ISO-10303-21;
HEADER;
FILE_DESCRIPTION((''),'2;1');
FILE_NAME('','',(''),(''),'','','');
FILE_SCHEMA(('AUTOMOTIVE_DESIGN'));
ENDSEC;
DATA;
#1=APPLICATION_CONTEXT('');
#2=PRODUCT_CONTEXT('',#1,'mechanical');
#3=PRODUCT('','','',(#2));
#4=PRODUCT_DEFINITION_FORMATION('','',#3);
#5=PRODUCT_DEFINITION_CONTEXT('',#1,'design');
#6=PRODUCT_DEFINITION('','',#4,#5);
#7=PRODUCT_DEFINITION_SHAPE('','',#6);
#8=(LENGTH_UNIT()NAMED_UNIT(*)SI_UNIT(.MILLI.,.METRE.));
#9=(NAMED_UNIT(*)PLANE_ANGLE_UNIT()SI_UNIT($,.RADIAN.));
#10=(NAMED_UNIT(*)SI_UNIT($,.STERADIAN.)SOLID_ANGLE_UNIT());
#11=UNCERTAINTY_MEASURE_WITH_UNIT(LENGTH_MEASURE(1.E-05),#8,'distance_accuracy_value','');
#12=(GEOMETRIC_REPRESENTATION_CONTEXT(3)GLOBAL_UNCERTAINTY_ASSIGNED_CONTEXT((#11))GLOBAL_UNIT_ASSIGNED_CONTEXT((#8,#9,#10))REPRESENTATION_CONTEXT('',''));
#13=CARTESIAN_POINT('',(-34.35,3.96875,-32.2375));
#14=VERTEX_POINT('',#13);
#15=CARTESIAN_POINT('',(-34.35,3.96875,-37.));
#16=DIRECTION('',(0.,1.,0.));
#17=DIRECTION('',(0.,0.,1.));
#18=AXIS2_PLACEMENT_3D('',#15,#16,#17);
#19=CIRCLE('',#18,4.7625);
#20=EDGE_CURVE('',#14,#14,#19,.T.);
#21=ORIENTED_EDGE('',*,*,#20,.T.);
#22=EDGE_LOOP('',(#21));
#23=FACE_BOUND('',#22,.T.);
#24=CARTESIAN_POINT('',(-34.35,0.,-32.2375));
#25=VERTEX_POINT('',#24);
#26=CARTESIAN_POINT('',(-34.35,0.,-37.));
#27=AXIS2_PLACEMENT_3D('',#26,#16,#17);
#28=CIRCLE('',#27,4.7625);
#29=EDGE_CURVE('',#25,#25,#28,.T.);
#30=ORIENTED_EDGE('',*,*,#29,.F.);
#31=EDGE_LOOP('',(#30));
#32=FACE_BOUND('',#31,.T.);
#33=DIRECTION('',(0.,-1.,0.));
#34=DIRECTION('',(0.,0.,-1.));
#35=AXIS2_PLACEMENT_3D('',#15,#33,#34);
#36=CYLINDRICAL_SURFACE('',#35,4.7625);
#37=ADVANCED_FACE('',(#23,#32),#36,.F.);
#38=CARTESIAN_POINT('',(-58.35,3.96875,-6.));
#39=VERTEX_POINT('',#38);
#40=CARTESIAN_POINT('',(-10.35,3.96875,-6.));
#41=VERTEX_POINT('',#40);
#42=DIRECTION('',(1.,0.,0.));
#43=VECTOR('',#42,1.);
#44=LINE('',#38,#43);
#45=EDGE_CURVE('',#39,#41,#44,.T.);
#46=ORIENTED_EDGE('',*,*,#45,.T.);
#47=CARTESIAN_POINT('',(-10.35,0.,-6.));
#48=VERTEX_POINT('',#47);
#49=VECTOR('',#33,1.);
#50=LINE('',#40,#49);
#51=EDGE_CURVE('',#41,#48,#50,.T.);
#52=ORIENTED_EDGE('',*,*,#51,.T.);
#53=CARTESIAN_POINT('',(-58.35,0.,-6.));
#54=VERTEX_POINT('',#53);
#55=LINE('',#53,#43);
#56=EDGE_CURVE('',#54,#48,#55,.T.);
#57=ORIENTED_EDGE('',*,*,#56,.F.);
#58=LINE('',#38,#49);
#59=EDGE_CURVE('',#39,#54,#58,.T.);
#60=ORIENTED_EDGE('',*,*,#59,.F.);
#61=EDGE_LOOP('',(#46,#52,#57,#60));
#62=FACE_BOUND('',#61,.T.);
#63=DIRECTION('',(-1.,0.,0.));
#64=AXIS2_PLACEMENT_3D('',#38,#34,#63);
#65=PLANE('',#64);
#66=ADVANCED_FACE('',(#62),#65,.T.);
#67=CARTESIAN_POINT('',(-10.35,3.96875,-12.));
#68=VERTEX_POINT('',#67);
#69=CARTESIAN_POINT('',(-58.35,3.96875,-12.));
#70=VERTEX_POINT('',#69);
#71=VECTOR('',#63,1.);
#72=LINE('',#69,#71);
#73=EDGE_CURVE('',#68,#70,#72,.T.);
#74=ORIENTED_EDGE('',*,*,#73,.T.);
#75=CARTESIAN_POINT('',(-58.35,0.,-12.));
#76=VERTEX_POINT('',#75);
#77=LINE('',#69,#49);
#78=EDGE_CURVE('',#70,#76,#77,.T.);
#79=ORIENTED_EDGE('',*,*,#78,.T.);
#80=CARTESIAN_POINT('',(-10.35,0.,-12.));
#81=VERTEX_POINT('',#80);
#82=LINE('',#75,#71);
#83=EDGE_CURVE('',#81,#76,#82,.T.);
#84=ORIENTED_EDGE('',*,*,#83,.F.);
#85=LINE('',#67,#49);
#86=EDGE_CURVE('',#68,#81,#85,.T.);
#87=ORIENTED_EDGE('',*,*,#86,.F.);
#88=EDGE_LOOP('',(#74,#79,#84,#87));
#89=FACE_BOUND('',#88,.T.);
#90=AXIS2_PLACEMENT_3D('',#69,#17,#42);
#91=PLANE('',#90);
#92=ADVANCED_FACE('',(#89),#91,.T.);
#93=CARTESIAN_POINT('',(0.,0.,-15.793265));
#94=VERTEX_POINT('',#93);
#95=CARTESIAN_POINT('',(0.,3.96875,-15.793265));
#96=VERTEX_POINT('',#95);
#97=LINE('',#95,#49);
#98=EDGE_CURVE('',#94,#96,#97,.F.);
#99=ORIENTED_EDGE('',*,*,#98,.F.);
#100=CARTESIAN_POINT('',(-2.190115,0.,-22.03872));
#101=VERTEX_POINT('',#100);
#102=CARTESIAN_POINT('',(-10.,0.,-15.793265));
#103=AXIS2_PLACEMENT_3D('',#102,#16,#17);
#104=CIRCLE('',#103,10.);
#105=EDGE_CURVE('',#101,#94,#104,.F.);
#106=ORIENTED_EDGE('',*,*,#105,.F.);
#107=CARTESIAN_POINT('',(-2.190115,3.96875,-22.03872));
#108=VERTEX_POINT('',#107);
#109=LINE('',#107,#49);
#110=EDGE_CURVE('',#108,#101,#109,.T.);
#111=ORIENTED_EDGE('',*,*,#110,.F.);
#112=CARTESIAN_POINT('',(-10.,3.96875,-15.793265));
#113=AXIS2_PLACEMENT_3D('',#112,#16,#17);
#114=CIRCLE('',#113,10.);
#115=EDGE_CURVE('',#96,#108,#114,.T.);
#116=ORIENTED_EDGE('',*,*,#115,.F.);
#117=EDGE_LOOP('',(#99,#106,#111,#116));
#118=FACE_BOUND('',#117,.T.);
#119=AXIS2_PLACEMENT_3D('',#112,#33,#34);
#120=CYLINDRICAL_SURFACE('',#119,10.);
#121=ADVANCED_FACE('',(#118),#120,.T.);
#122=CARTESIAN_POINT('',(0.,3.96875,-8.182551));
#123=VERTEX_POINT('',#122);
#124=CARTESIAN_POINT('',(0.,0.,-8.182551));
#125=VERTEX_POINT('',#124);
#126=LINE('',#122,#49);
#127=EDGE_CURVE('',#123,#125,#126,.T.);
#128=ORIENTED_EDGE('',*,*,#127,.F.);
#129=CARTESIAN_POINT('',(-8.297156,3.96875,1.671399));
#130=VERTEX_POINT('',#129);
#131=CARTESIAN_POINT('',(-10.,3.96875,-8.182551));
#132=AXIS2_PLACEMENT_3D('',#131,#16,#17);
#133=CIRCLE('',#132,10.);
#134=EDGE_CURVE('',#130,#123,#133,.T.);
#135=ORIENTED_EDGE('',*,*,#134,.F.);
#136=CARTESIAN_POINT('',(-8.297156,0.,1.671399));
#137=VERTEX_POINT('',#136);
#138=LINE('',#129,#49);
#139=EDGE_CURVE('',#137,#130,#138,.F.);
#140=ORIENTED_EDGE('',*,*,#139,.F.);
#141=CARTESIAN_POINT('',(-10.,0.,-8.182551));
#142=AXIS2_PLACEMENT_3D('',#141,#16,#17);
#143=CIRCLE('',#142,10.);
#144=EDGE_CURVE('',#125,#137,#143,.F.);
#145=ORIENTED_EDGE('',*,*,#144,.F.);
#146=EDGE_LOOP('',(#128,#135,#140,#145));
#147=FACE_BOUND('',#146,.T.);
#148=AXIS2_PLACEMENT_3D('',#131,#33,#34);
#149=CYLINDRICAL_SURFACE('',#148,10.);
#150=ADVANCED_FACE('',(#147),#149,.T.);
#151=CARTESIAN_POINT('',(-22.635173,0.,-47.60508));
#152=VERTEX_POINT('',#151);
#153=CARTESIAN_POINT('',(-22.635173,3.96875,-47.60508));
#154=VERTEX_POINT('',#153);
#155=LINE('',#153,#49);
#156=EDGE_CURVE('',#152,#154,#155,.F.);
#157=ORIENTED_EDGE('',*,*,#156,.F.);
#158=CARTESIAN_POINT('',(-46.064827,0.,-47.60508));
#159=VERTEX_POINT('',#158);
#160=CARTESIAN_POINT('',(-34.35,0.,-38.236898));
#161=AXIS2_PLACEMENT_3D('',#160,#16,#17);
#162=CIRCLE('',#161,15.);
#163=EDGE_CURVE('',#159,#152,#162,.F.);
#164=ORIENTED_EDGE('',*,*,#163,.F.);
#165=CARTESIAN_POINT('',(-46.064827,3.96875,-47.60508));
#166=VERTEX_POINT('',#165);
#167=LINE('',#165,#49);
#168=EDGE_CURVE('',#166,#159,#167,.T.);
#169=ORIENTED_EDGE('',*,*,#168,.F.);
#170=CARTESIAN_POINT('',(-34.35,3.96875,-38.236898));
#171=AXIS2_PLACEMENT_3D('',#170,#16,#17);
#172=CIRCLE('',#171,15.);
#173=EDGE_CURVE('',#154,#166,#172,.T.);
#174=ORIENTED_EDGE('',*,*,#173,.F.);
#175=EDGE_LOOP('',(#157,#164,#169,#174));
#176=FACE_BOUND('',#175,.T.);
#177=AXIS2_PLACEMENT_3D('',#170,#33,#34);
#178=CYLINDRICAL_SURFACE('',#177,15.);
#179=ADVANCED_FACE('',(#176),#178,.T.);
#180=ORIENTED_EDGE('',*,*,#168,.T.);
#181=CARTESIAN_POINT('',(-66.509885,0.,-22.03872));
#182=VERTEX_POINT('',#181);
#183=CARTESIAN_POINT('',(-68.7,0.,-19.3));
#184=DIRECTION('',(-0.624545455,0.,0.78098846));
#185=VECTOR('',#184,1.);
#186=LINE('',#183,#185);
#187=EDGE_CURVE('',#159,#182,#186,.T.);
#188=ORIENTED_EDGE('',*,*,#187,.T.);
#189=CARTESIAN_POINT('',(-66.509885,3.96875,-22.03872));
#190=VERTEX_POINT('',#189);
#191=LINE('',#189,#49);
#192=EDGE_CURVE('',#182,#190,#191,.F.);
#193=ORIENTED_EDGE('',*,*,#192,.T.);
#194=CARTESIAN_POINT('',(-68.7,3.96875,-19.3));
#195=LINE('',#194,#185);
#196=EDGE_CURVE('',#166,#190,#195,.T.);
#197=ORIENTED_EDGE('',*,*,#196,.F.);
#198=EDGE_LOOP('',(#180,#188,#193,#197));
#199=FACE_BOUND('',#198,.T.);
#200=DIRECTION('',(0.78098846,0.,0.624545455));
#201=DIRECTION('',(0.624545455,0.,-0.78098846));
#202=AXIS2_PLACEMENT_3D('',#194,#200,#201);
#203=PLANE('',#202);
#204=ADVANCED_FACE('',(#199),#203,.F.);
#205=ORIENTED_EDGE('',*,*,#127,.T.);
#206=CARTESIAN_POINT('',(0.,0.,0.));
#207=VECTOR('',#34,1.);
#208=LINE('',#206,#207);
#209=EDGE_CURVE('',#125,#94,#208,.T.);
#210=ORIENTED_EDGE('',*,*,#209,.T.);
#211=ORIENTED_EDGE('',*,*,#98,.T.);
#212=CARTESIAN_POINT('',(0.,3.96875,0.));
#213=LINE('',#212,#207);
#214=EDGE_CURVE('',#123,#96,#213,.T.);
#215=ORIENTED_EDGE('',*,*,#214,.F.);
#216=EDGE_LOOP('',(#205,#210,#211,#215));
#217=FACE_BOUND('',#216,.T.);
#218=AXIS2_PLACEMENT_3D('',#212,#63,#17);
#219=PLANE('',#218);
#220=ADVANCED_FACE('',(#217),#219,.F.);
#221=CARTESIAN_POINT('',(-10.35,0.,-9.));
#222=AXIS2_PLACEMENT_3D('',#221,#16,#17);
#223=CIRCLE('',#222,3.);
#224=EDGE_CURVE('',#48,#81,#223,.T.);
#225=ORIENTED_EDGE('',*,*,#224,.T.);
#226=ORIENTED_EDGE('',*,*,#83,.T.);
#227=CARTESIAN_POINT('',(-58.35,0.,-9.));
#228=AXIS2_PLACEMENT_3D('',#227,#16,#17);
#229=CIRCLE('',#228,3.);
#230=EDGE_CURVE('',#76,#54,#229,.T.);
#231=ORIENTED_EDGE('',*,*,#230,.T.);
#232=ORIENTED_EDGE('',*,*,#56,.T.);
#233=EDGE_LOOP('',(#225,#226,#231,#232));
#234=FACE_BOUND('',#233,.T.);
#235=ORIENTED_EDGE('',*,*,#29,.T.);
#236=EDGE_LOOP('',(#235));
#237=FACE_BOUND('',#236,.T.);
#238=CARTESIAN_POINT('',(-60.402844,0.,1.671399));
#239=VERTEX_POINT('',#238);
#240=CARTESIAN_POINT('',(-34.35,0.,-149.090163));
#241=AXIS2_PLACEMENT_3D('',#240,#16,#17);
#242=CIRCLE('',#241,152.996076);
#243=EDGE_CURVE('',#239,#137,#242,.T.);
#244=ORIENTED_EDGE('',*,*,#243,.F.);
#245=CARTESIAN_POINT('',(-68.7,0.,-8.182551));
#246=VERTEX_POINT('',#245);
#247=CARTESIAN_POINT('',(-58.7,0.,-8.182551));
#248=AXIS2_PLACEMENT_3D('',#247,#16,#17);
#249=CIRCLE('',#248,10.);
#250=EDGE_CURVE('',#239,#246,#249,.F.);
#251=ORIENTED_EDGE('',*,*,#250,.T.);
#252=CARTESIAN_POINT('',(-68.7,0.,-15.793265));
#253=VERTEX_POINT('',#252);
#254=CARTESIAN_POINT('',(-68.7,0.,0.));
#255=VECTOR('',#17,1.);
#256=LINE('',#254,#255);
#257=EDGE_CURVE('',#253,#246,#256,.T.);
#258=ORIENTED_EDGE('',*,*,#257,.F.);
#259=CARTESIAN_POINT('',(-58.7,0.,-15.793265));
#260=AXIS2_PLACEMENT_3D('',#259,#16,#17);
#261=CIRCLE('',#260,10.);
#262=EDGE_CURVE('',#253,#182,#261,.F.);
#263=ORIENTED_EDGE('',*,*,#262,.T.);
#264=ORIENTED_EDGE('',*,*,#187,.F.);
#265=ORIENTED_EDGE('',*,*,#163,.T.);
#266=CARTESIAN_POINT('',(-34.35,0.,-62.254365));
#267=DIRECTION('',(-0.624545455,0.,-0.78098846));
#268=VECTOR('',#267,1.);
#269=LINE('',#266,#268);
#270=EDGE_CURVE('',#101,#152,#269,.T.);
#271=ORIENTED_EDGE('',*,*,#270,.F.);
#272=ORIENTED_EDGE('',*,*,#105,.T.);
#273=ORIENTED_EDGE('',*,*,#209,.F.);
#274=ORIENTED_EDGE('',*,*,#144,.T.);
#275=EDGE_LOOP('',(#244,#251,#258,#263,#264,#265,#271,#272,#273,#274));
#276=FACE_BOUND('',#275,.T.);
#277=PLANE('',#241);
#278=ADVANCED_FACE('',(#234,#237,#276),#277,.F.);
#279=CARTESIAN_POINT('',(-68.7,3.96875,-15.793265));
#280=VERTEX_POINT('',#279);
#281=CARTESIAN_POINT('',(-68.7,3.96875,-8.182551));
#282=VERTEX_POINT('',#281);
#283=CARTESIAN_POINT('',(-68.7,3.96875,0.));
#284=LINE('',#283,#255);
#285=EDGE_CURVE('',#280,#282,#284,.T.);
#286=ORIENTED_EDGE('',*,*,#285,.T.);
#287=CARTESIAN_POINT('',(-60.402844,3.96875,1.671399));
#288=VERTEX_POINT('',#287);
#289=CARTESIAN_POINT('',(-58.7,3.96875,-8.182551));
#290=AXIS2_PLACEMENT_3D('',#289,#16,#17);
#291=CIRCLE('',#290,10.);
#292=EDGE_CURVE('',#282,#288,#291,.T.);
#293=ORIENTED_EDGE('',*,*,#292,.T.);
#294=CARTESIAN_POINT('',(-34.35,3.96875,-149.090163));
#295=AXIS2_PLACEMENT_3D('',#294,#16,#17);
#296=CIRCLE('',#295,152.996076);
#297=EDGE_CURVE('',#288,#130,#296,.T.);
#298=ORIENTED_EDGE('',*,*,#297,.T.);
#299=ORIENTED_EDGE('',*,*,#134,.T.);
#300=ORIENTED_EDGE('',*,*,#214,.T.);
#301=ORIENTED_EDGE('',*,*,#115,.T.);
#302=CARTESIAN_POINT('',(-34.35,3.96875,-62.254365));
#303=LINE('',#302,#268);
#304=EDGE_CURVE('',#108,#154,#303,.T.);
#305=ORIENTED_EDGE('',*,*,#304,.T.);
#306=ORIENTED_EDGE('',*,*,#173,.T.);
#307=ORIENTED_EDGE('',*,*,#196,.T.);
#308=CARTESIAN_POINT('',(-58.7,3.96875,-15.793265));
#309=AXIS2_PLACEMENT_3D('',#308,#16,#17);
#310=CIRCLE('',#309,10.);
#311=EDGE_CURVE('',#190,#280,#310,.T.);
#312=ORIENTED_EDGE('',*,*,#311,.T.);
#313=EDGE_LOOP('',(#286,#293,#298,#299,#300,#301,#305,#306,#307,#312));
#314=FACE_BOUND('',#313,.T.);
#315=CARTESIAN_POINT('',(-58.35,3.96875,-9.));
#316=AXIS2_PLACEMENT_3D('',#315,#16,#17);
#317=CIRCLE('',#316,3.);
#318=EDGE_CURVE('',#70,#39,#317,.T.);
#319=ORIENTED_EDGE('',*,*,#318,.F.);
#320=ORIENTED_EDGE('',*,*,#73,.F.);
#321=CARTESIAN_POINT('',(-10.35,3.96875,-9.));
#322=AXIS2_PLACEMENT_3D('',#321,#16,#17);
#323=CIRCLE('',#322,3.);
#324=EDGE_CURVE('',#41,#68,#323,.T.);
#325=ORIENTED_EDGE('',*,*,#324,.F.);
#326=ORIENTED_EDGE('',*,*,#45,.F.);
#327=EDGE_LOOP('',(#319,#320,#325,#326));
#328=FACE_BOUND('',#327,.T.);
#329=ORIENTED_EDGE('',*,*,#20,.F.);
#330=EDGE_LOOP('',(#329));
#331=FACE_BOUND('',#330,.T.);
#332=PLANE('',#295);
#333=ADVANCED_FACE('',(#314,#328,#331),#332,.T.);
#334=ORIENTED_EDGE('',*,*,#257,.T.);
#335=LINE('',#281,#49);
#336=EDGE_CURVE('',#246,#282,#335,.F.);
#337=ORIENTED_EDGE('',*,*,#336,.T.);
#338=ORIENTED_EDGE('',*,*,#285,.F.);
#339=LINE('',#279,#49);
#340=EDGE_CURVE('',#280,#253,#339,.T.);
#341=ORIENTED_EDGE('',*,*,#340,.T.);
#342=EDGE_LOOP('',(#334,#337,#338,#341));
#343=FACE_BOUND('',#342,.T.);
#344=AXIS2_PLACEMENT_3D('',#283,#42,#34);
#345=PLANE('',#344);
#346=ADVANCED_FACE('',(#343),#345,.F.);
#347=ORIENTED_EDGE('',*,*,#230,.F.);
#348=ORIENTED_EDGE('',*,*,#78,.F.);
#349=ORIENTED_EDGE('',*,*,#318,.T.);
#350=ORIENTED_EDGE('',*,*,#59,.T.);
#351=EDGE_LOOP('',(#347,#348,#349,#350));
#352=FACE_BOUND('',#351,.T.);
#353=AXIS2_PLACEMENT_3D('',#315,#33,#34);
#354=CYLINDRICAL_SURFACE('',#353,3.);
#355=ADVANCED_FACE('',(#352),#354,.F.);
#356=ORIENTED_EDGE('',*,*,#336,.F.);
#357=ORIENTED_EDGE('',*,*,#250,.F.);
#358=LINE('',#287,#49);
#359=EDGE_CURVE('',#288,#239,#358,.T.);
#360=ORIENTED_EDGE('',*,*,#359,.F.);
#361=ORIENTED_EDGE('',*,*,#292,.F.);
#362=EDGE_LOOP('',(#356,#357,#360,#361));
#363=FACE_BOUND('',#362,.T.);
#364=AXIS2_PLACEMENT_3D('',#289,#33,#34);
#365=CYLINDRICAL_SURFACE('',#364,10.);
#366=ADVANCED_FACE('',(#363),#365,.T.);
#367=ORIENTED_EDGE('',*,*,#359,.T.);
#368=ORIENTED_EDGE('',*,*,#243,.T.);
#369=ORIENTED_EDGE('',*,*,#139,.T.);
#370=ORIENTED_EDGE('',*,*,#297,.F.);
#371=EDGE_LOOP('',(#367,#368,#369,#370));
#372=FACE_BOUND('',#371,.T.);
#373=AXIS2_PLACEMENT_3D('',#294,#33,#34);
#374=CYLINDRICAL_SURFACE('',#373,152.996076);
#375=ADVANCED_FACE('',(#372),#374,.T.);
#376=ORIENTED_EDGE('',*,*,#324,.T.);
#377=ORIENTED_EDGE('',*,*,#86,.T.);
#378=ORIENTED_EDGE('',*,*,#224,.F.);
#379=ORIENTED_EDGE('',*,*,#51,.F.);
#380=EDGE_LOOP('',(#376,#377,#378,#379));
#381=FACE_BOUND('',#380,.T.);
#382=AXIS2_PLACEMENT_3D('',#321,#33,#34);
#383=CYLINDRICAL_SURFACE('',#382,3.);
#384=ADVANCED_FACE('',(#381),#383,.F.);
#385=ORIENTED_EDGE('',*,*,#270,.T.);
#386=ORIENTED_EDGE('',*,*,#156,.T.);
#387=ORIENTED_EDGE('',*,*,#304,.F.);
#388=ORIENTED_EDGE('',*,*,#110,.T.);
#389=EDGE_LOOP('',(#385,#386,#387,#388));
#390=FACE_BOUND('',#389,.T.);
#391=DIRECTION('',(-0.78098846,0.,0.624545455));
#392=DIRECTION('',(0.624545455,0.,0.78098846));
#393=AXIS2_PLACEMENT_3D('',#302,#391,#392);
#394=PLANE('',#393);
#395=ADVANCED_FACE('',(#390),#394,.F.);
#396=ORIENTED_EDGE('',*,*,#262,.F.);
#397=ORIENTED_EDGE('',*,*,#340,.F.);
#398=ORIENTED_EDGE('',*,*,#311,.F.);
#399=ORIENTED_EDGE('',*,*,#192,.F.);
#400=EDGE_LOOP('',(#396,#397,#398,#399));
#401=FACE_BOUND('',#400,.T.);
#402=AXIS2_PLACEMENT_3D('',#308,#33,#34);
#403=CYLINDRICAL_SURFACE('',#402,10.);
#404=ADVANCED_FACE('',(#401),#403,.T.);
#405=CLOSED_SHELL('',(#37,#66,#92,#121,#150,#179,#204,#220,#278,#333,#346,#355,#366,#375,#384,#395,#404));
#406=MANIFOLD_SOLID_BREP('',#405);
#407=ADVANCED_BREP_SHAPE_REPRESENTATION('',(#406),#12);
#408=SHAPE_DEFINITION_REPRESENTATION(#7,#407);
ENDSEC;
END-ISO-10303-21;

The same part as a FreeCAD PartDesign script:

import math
import FreeCAD as App
import Part
import Sketcher

V = App.Vector
Q = App.Units.Quantity


def edges_at(feature, points):
    """Names of the edges that pass closest to the given points."""
    edges = feature.Shape.Edges
    near = lambda p: min(range(len(edges)), key=lambda i: edges[i].distToShape(Part.Vertex(*p))[0])
    return sorted({f"Edge{near(p) + 1}" for p in points})

doc = App.newDocument("Part")
params = doc.addObject("Spreadsheet::Sheet", "Params")
for row, (alias, value) in enumerate([
    ("sketch1_radius", "3 mm"),
    ("sketch1_width", "48 mm"),
    ("sketch1_length", "55 mm"),
    ("sketch1_height", "19.3 mm"),
    ("pad1_length", "3.96875 mm"),
    ("fillet_radius", "10 mm"),
    ("fillet2_radius", "15 mm"),
], start=1):
    params.set(f"A{row}", alias)
    params.set(f"B{row}", "=" + value)
    params.setAlias(f"B{row}", alias)

body = doc.addObject("PartDesign::Body", "Body")

# Sketch on XZ plane
sketch1 = body.newObject("Sketcher::SketchObject", "Sketch")
sketch1.AttachmentSupport = (doc.getObject("XZ_Plane"), [""])
sketch1.MapMode = "FlatFace"
sketch1.addGeometry(Part.LineSegment(V(-68.7, -19.3, 0), V(-68.7, 0, 0)), False)
sketch1.addGeometry(Part.ArcOfCircle(Part.Circle(V(-34.35, -149.090163, 0), V(0, 0, 1), 152.996076), math.radians(77.025607), math.radians(102.974393)), False)
sketch1.addGeometry(Part.LineSegment(V(0, 0, 0), V(0, -19.3, 0)), False)
sketch1.addGeometry(Part.LineSegment(V(0, -19.3, 0), V(-34.35, -62.254365, 0)), False)
sketch1.addGeometry(Part.LineSegment(V(-34.35, -62.254365, 0), V(-68.7, -19.3, 0)), False)
sketch1.addGeometry(Part.LineSegment(V(-58.35, -12, 0), V(-10.35, -12, 0)), False)
sketch1.addGeometry(Part.ArcOfCircle(Part.Circle(V(-10.35, -9, 0), V(0, 0, 1), 3), math.radians(-90), math.radians(90)), False)
sketch1.addGeometry(Part.LineSegment(V(-10.35, -6, 0), V(-58.35, -6, 0)), False)
sketch1.addGeometry(Part.ArcOfCircle(Part.Circle(V(-58.35, -9, 0), V(0, 0, 1), 3), math.radians(90), math.radians(270)), False)
sketch1.addGeometry(Part.Circle(V(-34.35, -37, 0), V(0, 0, 1), 4.7625), False)
sketch1.addConstraint(Sketcher.Constraint("Coincident", 0, 2, 1, 2))
sketch1.addConstraint(Sketcher.Constraint("Coincident", 1, 1, 2, 1))
sketch1.addConstraint(Sketcher.Constraint("Coincident", 2, 2, 3, 1))
sketch1.addConstraint(Sketcher.Constraint("Coincident", 3, 2, 4, 1))
sketch1.addConstraint(Sketcher.Constraint("Coincident", 4, 2, 0, 1))
sketch1.addConstraint(Sketcher.Constraint("Tangent", 5, 2, 6, 1))
sketch1.addConstraint(Sketcher.Constraint("Tangent", 6, 2, 7, 1))
sketch1.addConstraint(Sketcher.Constraint("Tangent", 7, 2, 8, 1))
sketch1.addConstraint(Sketcher.Constraint("Tangent", 8, 2, 5, 1))
sketch1.addConstraint(Sketcher.Constraint("Vertical", 0))
sketch1.addConstraint(Sketcher.Constraint("Vertical", 2))
sketch1.addConstraint(Sketcher.Constraint("Horizontal", 5))
sketch1.addConstraint(Sketcher.Constraint("Horizontal", 7))
sketch1.addConstraint(Sketcher.Constraint("Coincident", 1, 1, -1, 1))
sketch1.addConstraint(Sketcher.Constraint("PointOnObject", 0, 2, -1))
sketch1.addConstraint(Sketcher.Constraint("Horizontal", 2, 2, 4, 2))
sketch1.addConstraint(Sketcher.Constraint("Vertical", 1, 3, 9, 3))
sketch1.addConstraint(Sketcher.Constraint("Vertical", 9, 3, 3, 2))
sketch1.addConstraint(Sketcher.Constraint("Radius", 6, Q("3 mm")))
sketch1.addConstraint(Sketcher.Constraint("DistanceX", 5, 1, 5, 2, Q("48 mm")))
sketch1.addConstraint(Sketcher.Constraint("Distance", 3, Q("55 mm")))
sketch1.addConstraint(Sketcher.Constraint("Diameter", 9, Q("9.525 mm")))
sketch1.addConstraint(Sketcher.Constraint("DistanceY", 0, 1, 0, 2, Q("19.3 mm")))
sketch1.addConstraint(Sketcher.Constraint("DistanceY", 6, 3, -1, 1, Q("9 mm")))
sketch1.addConstraint(Sketcher.Constraint("DistanceY", 9, 3, -1, 1, Q("37 mm")))
sketch1.addConstraint(Sketcher.Constraint("DistanceX", 1, 3, 6, 3, Q("24 mm")))
sketch1.addConstraint(Sketcher.Constraint("DistanceX", 0, 2, -1, 1, Q("68.7 mm")))
sketch1.addConstraint(Sketcher.Constraint("Radius", 1, Q("152.996076 mm")))
sketch1.setExpression("Constraints[18]", "Params.sketch1_radius")
sketch1.setExpression("Constraints[19]", "Params.sketch1_width")
sketch1.setExpression("Constraints[20]", "Params.sketch1_length")
sketch1.setExpression("Constraints[22]", "Params.sketch1_height")
pad1 = body.newObject("PartDesign::Pad", "Pad")
pad1.Profile = sketch1
pad1.setExpression("Length", "Params.pad1_length")
pad1.Reversed = True
doc.recompute()

fillet = body.newObject("PartDesign::Fillet", "Fillet")
fillet.Base = (pad1, edges_at(pad1, [
    (-68.7, 1.984, 0),
    (-68.7, 1.984, -19.3),
    (0, 1.984, -19.3),
    (0, 1.984, 0),
]))
fillet.setExpression("Radius", "Params.fillet_radius")
doc.recompute()

fillet2 = body.newObject("PartDesign::Fillet", "Fillet001")
fillet2.Base = (fillet, edges_at(fillet, [(-34.35, 1.984, -62.254)]))
fillet2.setExpression("Radius", "Params.fillet2_radius")

doc.recompute()
